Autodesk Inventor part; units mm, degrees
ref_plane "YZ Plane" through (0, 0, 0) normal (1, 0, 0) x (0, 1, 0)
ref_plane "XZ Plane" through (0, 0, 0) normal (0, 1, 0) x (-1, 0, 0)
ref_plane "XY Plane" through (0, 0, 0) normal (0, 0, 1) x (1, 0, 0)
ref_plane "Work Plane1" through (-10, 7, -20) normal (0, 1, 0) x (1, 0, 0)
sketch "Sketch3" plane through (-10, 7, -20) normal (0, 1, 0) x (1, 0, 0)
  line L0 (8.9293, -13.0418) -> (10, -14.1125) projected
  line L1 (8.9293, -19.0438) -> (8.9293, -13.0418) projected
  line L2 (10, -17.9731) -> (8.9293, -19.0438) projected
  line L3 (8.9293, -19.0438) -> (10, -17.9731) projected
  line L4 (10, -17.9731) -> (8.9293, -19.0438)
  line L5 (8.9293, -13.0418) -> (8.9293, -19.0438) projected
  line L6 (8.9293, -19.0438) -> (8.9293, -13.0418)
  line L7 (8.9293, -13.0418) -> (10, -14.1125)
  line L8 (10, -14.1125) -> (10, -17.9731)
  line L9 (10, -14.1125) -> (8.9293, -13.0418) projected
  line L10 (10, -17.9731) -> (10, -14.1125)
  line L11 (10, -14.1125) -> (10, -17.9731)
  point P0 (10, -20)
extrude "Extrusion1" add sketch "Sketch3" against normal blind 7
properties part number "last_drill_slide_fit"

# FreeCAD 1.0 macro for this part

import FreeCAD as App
import Part
import Sketcher

V = App.Vector
Q = App.Units.Quantity


def add_polygon(sketch, points):
    """Adds a closed chain of lines whose ends are joined by coincident constraints."""
    first, n = sketch.GeometryCount, len(points)
    for a, b in zip(points, points[1:] + points[:1]):
        sketch.addGeometry(Part.LineSegment(App.Vector(*a, 0), App.Vector(*b, 0)), False)
    for i in range(n):
        sketch.addConstraint(Sketcher.Constraint("Coincident", first + i, 2, first + (i + 1) % n, 1))

doc = App.newDocument("Part")
params = doc.addObject("Spreadsheet::Sheet", "Params")
for row, (alias, value) in enumerate([
    ("sketch1_height", "0.152 in"),
    ("pad1_length", "0.2755906 in"),
], start=1):
    params.set(f"A{row}", alias)
    params.set(f"B{row}", "=" + value)
    params.setAlias(f"B{row}", alias)

body = doc.addObject("PartDesign::Body", "Body")

# Sketch on XZ plane
sketch1 = doc.addObject("Sketcher::SketchObject", "Sketch")
body.addObject(sketch1)
sketch1.AttachmentSupport = (doc.XZ_Plane, [""])
sketch1.MapMode = "FlatFace"
sketch1.AttachmentOffset = App.Placement(V(0, 0, -0.2755906 * 25.4), App.Rotation())
add_polygon(sketch1, [(0, -5.9), (-1.1, -7), (-1.1, -1), (0, -2)])  # lines 0-3
sketch1.addConstraint(Sketcher.Constraint("Vertical", 1))
sketch1.addConstraint(Sketcher.Constraint("Vertical", 3))
sketch1.addConstraint(Sketcher.Constraint("PointOnObject", 2, 2, -2))
sketch1.addConstraint(Sketcher.Constraint("Perpendicular", 0, 2))
sketch1.addConstraint(Sketcher.Constraint("Equal", 0, 2))
sketch1.addConstraint(Sketcher.Constraint("DistanceY", 3, 2, 3, 1, Q("0.152 in")))
sketch1.addConstraint(Sketcher.Constraint("DistanceY", 1, 1, 1, 2, Q("0.2363 in")))
sketch1.addConstraint(Sketcher.Constraint("DistanceY", 2, 2, -1, 1, Q("0.0798 in")))
sketch1.setExpression("Constraints[9]", "Params.sketch1_height")
pad1 = doc.addObject("PartDesign::Pad", "Pad")
body.addObject(pad1)
pad1.Profile = sketch1
pad1.setExpression("Length", "Params.pad1_length")

doc.recompute()
